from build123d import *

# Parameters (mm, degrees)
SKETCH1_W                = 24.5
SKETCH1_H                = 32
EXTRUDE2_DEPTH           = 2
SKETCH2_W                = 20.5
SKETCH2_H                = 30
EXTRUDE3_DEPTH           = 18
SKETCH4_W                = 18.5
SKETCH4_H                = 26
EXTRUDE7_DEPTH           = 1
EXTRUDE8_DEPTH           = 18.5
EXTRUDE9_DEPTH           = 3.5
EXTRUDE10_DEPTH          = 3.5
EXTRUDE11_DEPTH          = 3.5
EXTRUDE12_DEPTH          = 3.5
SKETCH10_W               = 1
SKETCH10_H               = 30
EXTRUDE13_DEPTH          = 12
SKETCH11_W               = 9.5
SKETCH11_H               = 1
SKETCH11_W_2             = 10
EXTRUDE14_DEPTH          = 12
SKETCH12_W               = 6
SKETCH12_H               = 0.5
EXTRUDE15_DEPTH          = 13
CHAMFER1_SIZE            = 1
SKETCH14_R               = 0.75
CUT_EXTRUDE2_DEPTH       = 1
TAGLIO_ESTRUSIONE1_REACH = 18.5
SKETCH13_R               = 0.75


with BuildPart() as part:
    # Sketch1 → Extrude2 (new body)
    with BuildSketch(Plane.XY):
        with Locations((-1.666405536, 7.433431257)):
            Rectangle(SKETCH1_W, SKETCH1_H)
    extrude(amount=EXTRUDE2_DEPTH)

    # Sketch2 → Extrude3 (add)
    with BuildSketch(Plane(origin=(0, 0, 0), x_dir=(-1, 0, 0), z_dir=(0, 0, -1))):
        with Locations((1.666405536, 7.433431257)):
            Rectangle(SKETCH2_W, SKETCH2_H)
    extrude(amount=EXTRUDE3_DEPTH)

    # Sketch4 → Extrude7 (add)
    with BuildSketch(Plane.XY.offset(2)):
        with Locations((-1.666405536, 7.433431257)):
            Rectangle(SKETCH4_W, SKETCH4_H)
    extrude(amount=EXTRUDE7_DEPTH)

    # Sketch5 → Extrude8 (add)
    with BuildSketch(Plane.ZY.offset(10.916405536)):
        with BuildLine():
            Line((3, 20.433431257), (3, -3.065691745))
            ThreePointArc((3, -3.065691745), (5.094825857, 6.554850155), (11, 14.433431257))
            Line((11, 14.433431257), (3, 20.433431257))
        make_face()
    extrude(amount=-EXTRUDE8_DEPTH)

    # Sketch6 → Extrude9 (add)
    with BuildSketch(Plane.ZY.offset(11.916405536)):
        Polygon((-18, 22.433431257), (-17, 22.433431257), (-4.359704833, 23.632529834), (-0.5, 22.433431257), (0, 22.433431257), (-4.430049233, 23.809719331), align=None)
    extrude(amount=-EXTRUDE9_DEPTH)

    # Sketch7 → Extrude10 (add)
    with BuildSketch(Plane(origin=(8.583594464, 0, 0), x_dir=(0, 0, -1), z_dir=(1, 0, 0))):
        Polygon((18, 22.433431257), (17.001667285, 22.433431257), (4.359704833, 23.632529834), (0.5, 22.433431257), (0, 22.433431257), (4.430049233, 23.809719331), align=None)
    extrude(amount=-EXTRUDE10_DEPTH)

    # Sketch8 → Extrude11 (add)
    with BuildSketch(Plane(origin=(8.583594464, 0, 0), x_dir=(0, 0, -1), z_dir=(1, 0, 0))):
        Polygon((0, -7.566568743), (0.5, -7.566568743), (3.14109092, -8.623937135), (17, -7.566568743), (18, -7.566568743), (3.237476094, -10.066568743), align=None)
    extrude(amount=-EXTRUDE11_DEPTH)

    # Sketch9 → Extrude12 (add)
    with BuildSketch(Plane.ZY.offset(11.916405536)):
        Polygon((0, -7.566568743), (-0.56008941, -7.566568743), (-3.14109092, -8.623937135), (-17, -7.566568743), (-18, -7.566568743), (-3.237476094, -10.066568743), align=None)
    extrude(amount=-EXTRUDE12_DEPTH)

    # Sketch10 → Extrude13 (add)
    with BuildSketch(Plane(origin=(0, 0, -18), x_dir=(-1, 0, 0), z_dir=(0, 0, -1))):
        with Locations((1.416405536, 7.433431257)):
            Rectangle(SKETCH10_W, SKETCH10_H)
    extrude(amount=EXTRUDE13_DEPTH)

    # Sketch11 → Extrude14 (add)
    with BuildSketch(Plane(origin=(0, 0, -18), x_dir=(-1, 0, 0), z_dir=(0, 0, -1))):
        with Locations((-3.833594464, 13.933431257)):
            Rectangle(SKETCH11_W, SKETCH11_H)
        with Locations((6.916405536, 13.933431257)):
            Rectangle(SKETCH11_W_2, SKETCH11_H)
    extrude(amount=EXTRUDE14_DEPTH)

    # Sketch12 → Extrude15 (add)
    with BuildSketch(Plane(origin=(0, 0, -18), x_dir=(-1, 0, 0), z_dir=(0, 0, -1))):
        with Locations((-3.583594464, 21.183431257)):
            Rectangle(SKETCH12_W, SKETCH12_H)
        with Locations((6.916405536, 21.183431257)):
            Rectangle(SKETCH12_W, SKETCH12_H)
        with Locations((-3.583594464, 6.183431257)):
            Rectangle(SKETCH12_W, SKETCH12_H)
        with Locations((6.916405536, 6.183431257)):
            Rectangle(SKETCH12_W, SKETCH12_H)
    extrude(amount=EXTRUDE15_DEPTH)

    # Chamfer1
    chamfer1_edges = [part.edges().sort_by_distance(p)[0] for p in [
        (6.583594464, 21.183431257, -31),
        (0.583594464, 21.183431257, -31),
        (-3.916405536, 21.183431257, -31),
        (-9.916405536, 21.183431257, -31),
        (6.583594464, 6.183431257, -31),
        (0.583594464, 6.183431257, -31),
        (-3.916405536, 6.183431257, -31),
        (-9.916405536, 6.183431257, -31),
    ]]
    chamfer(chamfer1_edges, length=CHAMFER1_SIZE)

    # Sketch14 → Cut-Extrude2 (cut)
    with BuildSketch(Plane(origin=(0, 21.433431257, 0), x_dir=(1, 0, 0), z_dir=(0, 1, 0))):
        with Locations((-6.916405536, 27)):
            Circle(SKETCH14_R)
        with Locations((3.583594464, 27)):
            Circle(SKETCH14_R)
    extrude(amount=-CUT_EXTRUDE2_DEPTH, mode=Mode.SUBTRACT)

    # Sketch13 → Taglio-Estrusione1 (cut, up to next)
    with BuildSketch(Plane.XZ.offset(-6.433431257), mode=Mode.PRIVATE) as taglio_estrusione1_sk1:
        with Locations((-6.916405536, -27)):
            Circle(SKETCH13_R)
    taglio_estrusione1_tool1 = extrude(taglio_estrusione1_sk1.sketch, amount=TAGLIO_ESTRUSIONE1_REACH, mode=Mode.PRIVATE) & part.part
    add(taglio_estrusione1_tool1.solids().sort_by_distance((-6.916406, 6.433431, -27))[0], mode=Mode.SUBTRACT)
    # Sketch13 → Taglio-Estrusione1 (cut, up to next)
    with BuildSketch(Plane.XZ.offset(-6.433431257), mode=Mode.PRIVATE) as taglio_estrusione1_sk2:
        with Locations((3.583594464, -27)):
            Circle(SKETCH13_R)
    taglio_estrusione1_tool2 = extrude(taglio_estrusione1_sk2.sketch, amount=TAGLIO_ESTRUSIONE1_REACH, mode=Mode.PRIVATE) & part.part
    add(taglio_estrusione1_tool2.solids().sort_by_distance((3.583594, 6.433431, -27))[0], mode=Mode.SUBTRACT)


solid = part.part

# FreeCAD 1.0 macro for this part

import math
import FreeCAD as App
import Part
import Sketcher
from FreeCAD import Vector


def edges_at(feature, points):
    """Names of the edges that pass closest to the given points."""
    edges = feature.Shape.Edges
    near = lambda p: min(range(len(edges)), key=lambda i: edges[i].distToShape(Part.Vertex(*p))[0])
    return sorted({f"Edge{near(p) + 1}" for p in points})


def add_polygon(sketch, points):
    """Adds a closed chain of lines whose ends are joined by coincident constraints."""
    first, n = sketch.GeometryCount, len(points)
    for a, b in zip(points, points[1:] + points[:1]):
        sketch.addGeometry(Part.LineSegment(App.Vector(*a, 0), App.Vector(*b, 0)), False)
    for i in range(n):
        sketch.addConstraint(Sketcher.Constraint("Coincident", first + i, 2, first + (i + 1) % n, 1))

doc = App.newDocument("Part")
body = doc.addObject("PartDesign::Body", "Body")

# Sketch on XY plane
sketch1 = doc.addObject("Sketcher::SketchObject", "Sketch")
body.addObject(sketch1)
sketch1.AttachmentSupport = (doc.XY_Plane, [""])
sketch1.MapMode = "FlatFace"
add_polygon(sketch1, [(-13.916406, 23.433431), (-13.916406, -8.566569), (10.583594, -8.566569), (10.583594, 23.433431)])  # lines 0-3
sketch1.addConstraint(Sketcher.Constraint("Vertical", 0))
sketch1.addConstraint(Sketcher.Constraint("Horizontal", 1))
sketch1.addConstraint(Sketcher.Constraint("Vertical", 2))
sketch1.addConstraint(Sketcher.Constraint("Horizontal", 3))
sketch1.addConstraint(Sketcher.Constraint("DistanceY", 0, 2, 0, 1, 32.0))
sketch1.addConstraint(Sketcher.Constraint("DistanceX", 1, 1, 1, 2, 24.5))
sketch1.addConstraint(Sketcher.Constraint("DistanceY", 0, 2, -1, 1, 8.566569))
sketch1.addConstraint(Sketcher.Constraint("DistanceX", 0, 2, -1, 1, 13.916406))
pad1 = doc.addObject("PartDesign::Pad", "Pad")
body.addObject(pad1)
pad1.Profile = sketch1
pad1.Length = 2

# Sketch on XY plane
sketch2 = doc.addObject("Sketcher::SketchObject", "Sketch001")
body.addObject(sketch2)
sketch2.AttachmentSupport = (doc.XY_Plane, [""])
sketch2.MapMode = "FlatFace"
add_polygon(sketch2, [(8.583594, 22.433431), (8.583594, -7.566569), (-11.916406, -7.566569), (-11.916406, 22.433431)])  # lines 0-3
sketch2.addConstraint(Sketcher.Constraint("Vertical", 0))
sketch2.addConstraint(Sketcher.Constraint("Horizontal", 1))
sketch2.addConstraint(Sketcher.Constraint("Vertical", 2))
sketch2.addConstraint(Sketcher.Constraint("Horizontal", 3))
sketch2.addConstraint(Sketcher.Constraint("DistanceY", 0, 2, 0, 1, 30.0))
sketch2.addConstraint(Sketcher.Constraint("DistanceX", 1, 2, 1, 1, 20.5))
sketch2.addConstraint(Sketcher.Constraint("DistanceY", 0, 2, -1, 1, 7.566569))
sketch2.addConstraint(Sketcher.Constraint("DistanceX", -1, 1, 0, 2, 8.583594))
pad2 = doc.addObject("PartDesign::Pad", "Pad001")
body.addObject(pad2)
pad2.Profile = sketch2
pad2.Length = 18
pad2.Reversed = True

# Sketch on XY plane
sketch3 = doc.addObject("Sketcher::SketchObject", "Sketch002")
body.addObject(sketch3)
sketch3.AttachmentSupport = (doc.XY_Plane, [""])
sketch3.MapMode = "FlatFace"
sketch3.AttachmentOffset = App.Placement(Vector(0, 0, 2), App.Rotation())
add_polygon(sketch3, [(-10.916406, 20.433431), (-10.916406, -5.566569), (7.583594, -5.566569), (7.583594, 20.433431)])  # lines 0-3
sketch3.addConstraint(Sketcher.Constraint("Vertical", 0))
sketch3.addConstraint(Sketcher.Constraint("Horizontal", 1))
sketch3.addConstraint(Sketcher.Constraint("Vertical", 2))
sketch3.addConstraint(Sketcher.Constraint("Horizontal", 3))
sketch3.addConstraint(Sketcher.Constraint("DistanceY", 0, 2, 0, 1, 26.0))
sketch3.addConstraint(Sketcher.Constraint("DistanceX", 1, 1, 1, 2, 18.5))
sketch3.addConstraint(Sketcher.Constraint("DistanceY", 0, 2, -1, 1, 5.566569))
sketch3.addConstraint(Sketcher.Constraint("DistanceX", 0, 2, -1, 1, 10.916406))
pad3 = doc.addObject("PartDesign::Pad", "Pad002")
body.addObject(pad3)
pad3.Profile = sketch3
pad3.Length = 1

# Sketch on YZ plane
sketch4 = doc.addObject("Sketcher::SketchObject", "Sketch003")
body.addObject(sketch4)
sketch4.AttachmentSupport = (doc.YZ_Plane, [""])
sketch4.MapMode = "FlatFace"
sketch4.AttachmentOffset = App.Placement(Vector(0, 0, -10.916406), App.Rotation())
sketch4.addGeometry(Part.LineSegment(Vector(20.433431, 3, 0), Vector(-3.065692, 3, 0)), False)
sketch4.addGeometry(Part.ArcOfCircle(Part.Circle(Vector(-3.065692, 26.138707, 0), Vector(0, 0, 1), 23.138707), math.radians(-90), math.radians(-40.863486)), False)
sketch4.addGeometry(Part.LineSegment(Vector(14.433431, 11, 0), Vector(20.433431, 3, 0)), False)
sketch4.addConstraint(Sketcher.Constraint("Tangent", 0, 2, 1, 1))
sketch4.addConstraint(Sketcher.Constraint("Coincident", 1, 2, 2, 1))
sketch4.addConstraint(Sketcher.Constraint("Coincident", 2, 2, 0, 1))
sketch4.addConstraint(Sketcher.Constraint("Horizontal", 0))
sketch4.addConstraint(Sketcher.Constraint("Distance", 2, 10.0))
sketch4.addConstraint(Sketcher.Constraint("DistanceY", -1, 1, 0, 2, 3.0))
sketch4.addConstraint(Sketcher.Constraint("DistanceY", -1, 1, 1, 2, 11.0))
sketch4.addConstraint(Sketcher.Constraint("Radius", 1, 23.138707))
sketch4.addConstraint(Sketcher.Constraint("DistanceX", 1, 3, -1, 1, 3.065692))
pad4 = doc.addObject("PartDesign::Pad", "Pad003")
body.addObject(pad4)
pad4.Profile = sketch4
pad4.Length = 18.5

# Sketch on YZ plane
sketch5 = doc.addObject("Sketcher::SketchObject", "Sketch004")
body.addObject(sketch5)
sketch5.AttachmentSupport = (doc.YZ_Plane, [""])
sketch5.MapMode = "FlatFace"
sketch5.AttachmentOffset = App.Placement(Vector(0, 0, -11.916406), App.Rotation())
add_polygon(sketch5, [(22.433431, -18), (22.433431, -17), (23.63253, -4.359705), (22.433431, -0.5), (22.433431, 0), (23.809719, -4.430049)])  # lines 0-5
sketch5.addConstraint(Sketcher.Constraint("Vertical", 0))
sketch5.addConstraint(Sketcher.Constraint("Vertical", 3))
sketch5.addConstraint(Sketcher.Constraint("PointOnObject", 3, 2, -1))
sketch5.addConstraint(Sketcher.Constraint("Parallel", 2, 4))
sketch5.addConstraint(Sketcher.Constraint("Vertical", 0, 2, 2, 2))
sketch5.addConstraint(Sketcher.Constraint("DistanceY", 0, 1, 0, 2, 1.0))
sketch5.addConstraint(Sketcher.Constraint("DistanceY", 3, 1, 3, 2, 0.5))
sketch5.addConstraint(Sketcher.Constraint("DistanceY", 0, 2, -1, 1, 17.0))
sketch5.addConstraint(Sketcher.Constraint("DistanceX", 0, 2, 1, 2, 1.199099))
sketch5.addConstraint(Sketcher.Constraint("DistanceX", -1, 1, 0, 2, 22.433431))
sketch5.addConstraint(Sketcher.Constraint("DistanceX", -1, 1, 4, 2, 23.809719))
sketch5.addConstraint(Sketcher.Constraint("DistanceY", 4, 2, -1, 1, 4.430049))
pad5 = doc.addObject("PartDesign::Pad", "Pad004")
body.addObject(pad5)
pad5.Profile = sketch5
pad5.Length = 3.5

# Sketch on YZ plane
sketch6 = doc.addObject("Sketcher::SketchObject", "Sketch005")
body.addObject(sketch6)
sketch6.AttachmentSupport = (doc.YZ_Plane, [""])
sketch6.MapMode = "FlatFace"
sketch6.AttachmentOffset = App.Placement(Vector(0, 0, 8.583594), App.Rotation())
add_polygon(sketch6, [(22.433431, -17.001667), (22.433431, -18), (23.809719, -4.430049), (22.433431, 0), (22.433431, -0.5), (23.63253, -4.359705)])  # lines 0-5
sketch6.addConstraint(Sketcher.Constraint("Vertical", 0))
sketch6.addConstraint(Sketcher.Constraint("Vertical", 3))
sketch6.addConstraint(Sketcher.Constraint("PointOnObject", 2, 2, -1))
sketch6.addConstraint(Sketcher.Constraint("Parallel", 2, 4))
sketch6.addConstraint(Sketcher.Constraint("Vertical", 0, 2, 2, 2))
sketch6.addConstraint(Sketcher.Constraint("DistanceY", 3, 2, 3, 1, 0.5))
sketch6.addConstraint(Sketcher.Constraint("DistanceY", 0, 2, -1, 1, 18.0))
sketch6.addConstraint(Sketcher.Constraint("DistanceX", 3, 2, 4, 2, 1.199099))
sketch6.addConstraint(Sketcher.Constraint("DistanceY", 0, 2, 0, 1, 0.998333))
sketch6.addConstraint(Sketcher.Constraint("DistanceX", -1, 1, 0, 2, 22.433431))
sketch6.addConstraint(Sketcher.Constraint("DistanceX", -1, 1, 1, 2, 23.809719))
sketch6.addConstraint(Sketcher.Constraint("DistanceY", 1, 2, -1, 1, 4.430049))
pad6 = doc.addObject("PartDesign::Pad", "Pad005")
body.addObject(pad6)
pad6.Profile = sketch6
pad6.Length = 3.5
pad6.Reversed = True

# Sketch on YZ plane
sketch7 = doc.addObject("Sketcher::SketchObject", "Sketch006")
body.addObject(sketch7)
sketch7.AttachmentSupport = (doc.YZ_Plane, [""])
sketch7.MapMode = "FlatFace"
sketch7.AttachmentOffset = App.Placement(Vector(0, 0, 8.583594), App.Rotation())
add_polygon(sketch7, [(-7.566569, -0.5), (-7.566569, 0), (-10.066569, -3.237476), (-7.566569, -18), (-7.566569, -17), (-8.623937, -3.141091)])  # lines 0-5
sketch7.addConstraint(Sketcher.Constraint("Vertical", 0))
sketch7.addConstraint(Sketcher.Constraint("Vertical", 3))
sketch7.addConstraint(Sketcher.Constraint("PointOnObject", 0, 2, -1))
sketch7.addConstraint(Sketcher.Constraint("Vertical", 0, 2, 2, 2))
sketch7.addConstraint(Sketcher.Constraint("DistanceY", 3, 1, 3, 2, 1.0))
sketch7.addConstraint(Sketcher.Constraint("DistanceY", 0, 1, 0, 2, 0.5))
sketch7.addConstraint(Sketcher.Constraint("DistanceY", 2, 2, -1, 1, 18.0))
sketch7.addConstraint(Sketcher.Constraint("DistanceX", 1, 2, 0, 2, 2.5))
sketch7.addConstraint(Sketcher.Constraint("Distance", 5, 2.844888))
sketch7.addConstraint(Sketcher.Constraint("DistanceX", 0, 2, -1, 1, 7.566569))
sketch7.addConstraint(Sketcher.Constraint("DistanceY", 4, 2, -1, 1, 3.141091))
sketch7.addConstraint(Sketcher.Constraint("Distance", 1, 4.090385))
pad7 = doc.addObject("PartDesign::Pad", "Pad006")
body.addObject(pad7)
pad7.Profile = sketch7
pad7.Length = 3.5
pad7.Reversed = True

# Sketch on YZ plane
sketch8 = doc.addObject("Sketcher::SketchObject", "Sketch007")
body.addObject(sketch8)
sketch8.AttachmentSupport = (doc.YZ_Plane, [""])
sketch8.MapMode = "FlatFace"
sketch8.AttachmentOffset = App.Placement(Vector(0, 0, -11.916406), App.Rotation())
add_polygon(sketch8, [(-7.566569, 0), (-7.566569, -0.560089), (-8.623937, -3.141091), (-7.566569, -17), (-7.566569, -18), (-10.066569, -3.237476)])  # lines 0-5
sketch8.addConstraint(Sketcher.Constraint("Vertical", 0))
sketch8.addConstraint(Sketcher.Constraint("Vertical", 3))
sketch8.addConstraint(Sketcher.Constraint("PointOnObject", 5, 2, -1))
sketch8.addConstraint(Sketcher.Constraint("Vertical", 0, 2, 2, 2))
sketch8.addConstraint(Sketcher.Constraint("DistanceY", 3, 2, 3, 1, 1.0))
sketch8.addConstraint(Sketcher.Constraint("DistanceY", 2, 2, -1, 1, 17.0))
sketch8.addConstraint(Sketcher.Constraint("DistanceX", 4, 2, 0, 2, 2.5))
sketch8.addConstraint(Sketcher.Constraint("DistanceY", 1, 2, 0, 2, 2.581002))
sketch8.addConstraint(Sketcher.Constraint("DistanceY", 0, 2, 0, 1, 0.560089))
sketch8.addConstraint(Sketcher.Constraint("DistanceX", 0, 2, -1, 1, 7.566569))
sketch8.addConstraint(Sketcher.Constraint("DistanceX", 1, 2, 0, 2, 1.057368))
sketch8.addConstraint(Sketcher.Constraint("Distance", 4, 14.972712))
pad8 = doc.addObject("PartDesign::Pad", "Pad007")
body.addObject(pad8)
pad8.Profile = sketch8
pad8.Length = 3.5

# Sketch on XY plane
sketch9 = doc.addObject("Sketcher::SketchObject", "Sketch008")
body.addObject(sketch9)
sketch9.AttachmentSupport = (doc.XY_Plane, [""])
sketch9.MapMode = "FlatFace"
sketch9.AttachmentOffset = App.Placement(Vector(0, 0, -18), App.Rotation())
add_polygon(sketch9, [(-0.916406, 22.433431), (-0.916406, -7.566569), (-1.916406, -7.566569), (-1.916406, 22.433431)])  # lines 0-3
sketch9.addConstraint(Sketcher.Constraint("Vertical", 0))
sketch9.addConstraint(Sketcher.Constraint("Horizontal", 1))
sketch9.addConstraint(Sketcher.Constraint("Vertical", 2))
sketch9.addConstraint(Sketcher.Constraint("Horizontal", 3))
sketch9.addConstraint(Sketcher.Constraint("DistanceX", 1, 2, 1, 1, 1.0))
sketch9.addConstraint(Sketcher.Constraint("DistanceY", 0, 2, 0, 1, 30.0))
sketch9.addConstraint(Sketcher.Constraint("DistanceY", 0, 2, -1, 1, 7.566569))
sketch9.addConstraint(Sketcher.Constraint("DistanceX", 0, 2, -1, 1, 0.916406))
pad9 = doc.addObject("PartDesign::Pad", "Pad008")
body.addObject(pad9)
pad9.Profile = sketch9
pad9.Length = 12
pad9.Reversed = True

# Sketch on XY plane
sketch10 = doc.addObject("Sketcher::SketchObject", "Sketch009")
body.addObject(sketch10)
sketch10.AttachmentSupport = (doc.XY_Plane, [""])
sketch10.MapMode = "FlatFace"
sketch10.AttachmentOffset = App.Placement(Vector(0, 0, -18), App.Rotation())
add_polygon(sketch10, [(8.583594, 14.433431), (8.583594, 13.433431), (-0.916406, 13.433431), (-0.916406, 14.433431)])  # lines 0-3
add_polygon(sketch10, [(-1.916406, 14.433431), (-1.916406, 13.433431), (-11.916406, 13.433431), (-11.916406, 14.433431)])  # lines 4-7
sketch10.addConstraint(Sketcher.Constraint("Vertical", 0))
sketch10.addConstraint(Sketcher.Constraint("Horizontal", 1))
sketch10.addConstraint(Sketcher.Constraint("Vertical", 2))
sketch10.addConstraint(Sketcher.Constraint("Horizontal", 3))
sketch10.addConstraint(Sketcher.Constraint("Vertical", 4))
sketch10.addConstraint(Sketcher.Constraint("Horizontal", 5))
sketch10.addConstraint(Sketcher.Constraint("Vertical", 6))
sketch10.addConstraint(Sketcher.Constraint("Horizontal", 7))
sketch10.addConstraint(Sketcher.Constraint("Horizontal", 1, 2, 4, 2))
sketch10.addConstraint(Sketcher.Constraint("Horizontal", 3, 2, 6, 2))
sketch10.addConstraint(Sketcher.Constraint("DistanceX", 5, 2, 5, 1, 10.0))
sketch10.addConstraint(Sketcher.Constraint("DistanceY", 0, 2, 0, 1, 1.0))
sketch10.addConstraint(Sketcher.Constraint("DistanceX", 1, 2, 1, 1, 9.5))
sketch10.addConstraint(Sketcher.Constraint("DistanceX", 4, 2, 1, 2, 1.0))
sketch10.addConstraint(Sketcher.Constraint("DistanceY", -1, 1, 0, 2, 13.433431))
sketch10.addConstraint(Sketcher.Constraint("DistanceX", -1, 1, 0, 2, 8.583594))
pad10 = doc.addObject("PartDesign::Pad", "Pad009")
body.addObject(pad10)
pad10.Profile = sketch10
pad10.Length = 12
pad10.Reversed = True

# Sketch on XY plane
sketch11 = doc.addObject("Sketcher::SketchObject", "Sketch010")
body.addObject(sketch11)
sketch11.AttachmentSupport = (doc.XY_Plane, [""])
sketch11.MapMode = "FlatFace"
sketch11.AttachmentOffset = App.Placement(Vector(0, 0, -18), App.Rotation())
add_polygon(sketch11, [(6.583594, 21.433431), (6.583594, 20.933431), (0.583594, 20.933431), (0.583594, 21.433431)])  # lines 0-3
add_polygon(sketch11, [(-3.916406, 21.433431), (-3.916406, 20.933431), (-9.916406, 20.933431), (-9.916406, 21.433431)])  # lines 4-7
add_polygon(sketch11, [(6.583594, 6.433431), (6.583594, 5.933431), (0.583594, 5.933431), (0.583594, 6.433431)])  # lines 8-11
add_polygon(sketch11, [(-3.916406, 6.433431), (-3.916406, 5.933431), (-9.916406, 5.933431), (-9.916406, 6.433431)])  # lines 12-15
sketch11.addConstraint(Sketcher.Constraint("Vertical", 0))
sketch11.addConstraint(Sketcher.Constraint("Horizontal", 1))
sketch11.addConstraint(Sketcher.Constraint("Vertical", 2))
sketch11.addConstraint(Sketcher.Constraint("Horizontal", 3))
sketch11.addConstraint(Sketcher.Constraint("Vertical", 4))
sketch11.addConstraint(Sketcher.Constraint("Horizontal", 5))
sketch11.addConstraint(Sketcher.Constraint("Vertical", 6))
sketch11.addConstraint(Sketcher.Constraint("Horizontal", 7))
sketch11.addConstraint(Sketcher.Constraint("Vertical", 8))
sketch11.addConstraint(Sketcher.Constraint("Horizontal", 9))
sketch11.addConstraint(Sketcher.Constraint("Vertical", 10))
sketch11.addConstraint(Sketcher.Constraint("Horizontal", 11))
sketch11.addConstraint(Sketcher.Constraint("Vertical", 12))
sketch11.addConstraint(Sketcher.Constraint("Horizontal", 13))
sketch11.addConstraint(Sketcher.Constraint("Vertical", 14))
sketch11.addConstraint(Sketcher.Constraint("Horizontal", 15))
sketch11.addConstraint(Sketcher.Constraint("Horizontal", 1, 2, 4, 2))
sketch11.addConstraint(Sketcher.Constraint("Horizontal", 3, 2, 6, 2))
sketch11.addConstraint(Sketcher.Constraint("Horizontal", 9, 2, 12, 2))
sketch11.addConstraint(Sketcher.Constraint("Horizontal", 11, 2, 14, 2))
sketch11.addConstraint(Sketcher.Constraint("Vertical", 3, 2, 8, 2))
sketch11.addConstraint(Sketcher.Constraint("Vertical", 2, 2, 9, 2))
sketch11.addConstraint(Sketcher.Constraint("Vertical", 7, 2, 12, 2))
sketch11.addConstraint(Sketcher.Constraint("Vertical", 6, 2, 13, 2))
sketch11.addConstraint(Sketcher.Constraint("Equal", 3, 5))
sketch11.addConstraint(Sketcher.Constraint("Equal", 6, 8))
sketch11.addConstraint(Sketcher.Constraint("DistanceX", 1, 2, 1, 1, 6.0))
sketch11.addConstraint(Sketcher.Constraint("DistanceY", 0, 2, 0, 1, 0.5))
sketch11.addConstraint(Sketcher.Constraint("DistanceY", 8, 2, 0, 2, 15.0))
sketch11.addConstraint(Sketcher.Constraint("DistanceX", 4, 2, 1, 2, 4.5))
sketch11.addConstraint(Sketcher.Constraint("DistanceY", -1, 1, 0, 2, 20.933431))
sketch11.addConstraint(Sketcher.Constraint("DistanceX", -1, 1, 0, 2, 6.583594))
pad11 = doc.addObject("PartDesign::Pad", "Pad010")
body.addObject(pad11)
pad11.Profile = sketch11
pad11.Length = 13
pad11.Reversed = True
doc.recompute()

chamfer = doc.addObject("PartDesign::Chamfer", "Chamfer")
body.addObject(chamfer)
chamfer.Base = (pad11, edges_at(pad11, [
    (6.584, 21.183, -31),
    (0.584, 21.183, -31),
    (-3.916, 21.183, -31),
    (-9.916, 21.183, -31),
    (6.584, 6.183, -31),
    (0.584, 6.183, -31),
    (-3.916, 6.183, -31),
    (-9.916, 6.183, -31),
]))
chamfer.Size = 1

# Sketch on XZ plane
sketch12 = doc.addObject("Sketcher::SketchObject", "Sketch011")
body.addObject(sketch12)
sketch12.AttachmentSupport = (doc.XZ_Plane, [""])
sketch12.MapMode = "FlatFace"
sketch12.AttachmentOffset = App.Placement(Vector(0, 0, -21.433431), App.Rotation())
sketch12.addGeometry(Part.Circle(Vector(-6.916406, -27, 0), Vector(0, 0, 1), 0.75), False)
sketch12.addGeometry(Part.Circle(Vector(3.583594, -27, 0), Vector(0, 0, 1), 0.75), False)
sketch12.addConstraint(Sketcher.Constraint("Equal", 0, 1))
sketch12.addConstraint(Sketcher.Constraint("Horizontal", 0, 3, 1, 3))
sketch12.addConstraint(Sketcher.Constraint("Diameter", 0, 1.5))
sketch12.addConstraint(Sketcher.Constraint("DistanceY", 0, 3, -1, 1, 27.0))
sketch12.addConstraint(Sketcher.Constraint("DistanceX", 0, 3, 1, 3, 10.5))
sketch12.addConstraint(Sketcher.Constraint("DistanceX", 0, 3, -1, 1, 6.916406))
pocket1 = doc.addObject("PartDesign::Pocket", "Pocket")
body.addObject(pocket1)
pocket1.Profile = sketch12
pocket1.Length = 1
pocket1.Reversed = True

# Sketch on XZ plane
sketch13 = doc.addObject("Sketcher::SketchObject", "Sketch012")
body.addObject(sketch13)
sketch13.AttachmentSupport = (doc.XZ_Plane, [""])
sketch13.MapMode = "FlatFace"
sketch13.AttachmentOffset = App.Placement(Vector(0, 0, -6.433431), App.Rotation())
sketch13.addGeometry(Part.Circle(Vector(-6.916406, -27, 0), Vector(0, 0, 1), 0.75), False)
sketch13.addConstraint(Sketcher.Constraint("Diameter", 0, 1.5))
sketch13.addConstraint(Sketcher.Constraint("DistanceY", 0, 3, -1, 1, 27.0))
sketch13.addConstraint(Sketcher.Constraint("DistanceX", 0, 3, -1, 1, 6.916406))
pocket2 = doc.addObject("PartDesign::Pocket", "Pocket001")
body.addObject(pocket2)
pocket2.Profile = sketch13
pocket2.Type = "UpToFirst"
pocket2.Reversed = True

# Sketch on XZ plane
sketch14 = doc.addObject("Sketcher::SketchObject", "Sketch013")
body.addObject(sketch14)
sketch14.AttachmentSupport = (doc.XZ_Plane, [""])
sketch14.MapMode = "FlatFace"
sketch14.AttachmentOffset = App.Placement(Vector(0, 0, -6.433431), App.Rotation())
sketch14.addGeometry(Part.Circle(Vector(3.583594, -27, 0), Vector(0, 0, 1), 0.75), False)
sketch14.addConstraint(Sketcher.Constraint("Diameter", 0, 1.5))
sketch14.addConstraint(Sketcher.Constraint("DistanceY", 0, 3, -1, 1, 27.0))
sketch14.addConstraint(Sketcher.Constraint("DistanceX", -1, 1, 0, 3, 3.583594))
pocket3 = doc.addObject("PartDesign::Pocket", "Pocket002")
body.addObject(pocket3)
pocket3.Profile = sketch14
pocket3.Type = "UpToFirst"
pocket3.Reversed = True

doc.recompute()
